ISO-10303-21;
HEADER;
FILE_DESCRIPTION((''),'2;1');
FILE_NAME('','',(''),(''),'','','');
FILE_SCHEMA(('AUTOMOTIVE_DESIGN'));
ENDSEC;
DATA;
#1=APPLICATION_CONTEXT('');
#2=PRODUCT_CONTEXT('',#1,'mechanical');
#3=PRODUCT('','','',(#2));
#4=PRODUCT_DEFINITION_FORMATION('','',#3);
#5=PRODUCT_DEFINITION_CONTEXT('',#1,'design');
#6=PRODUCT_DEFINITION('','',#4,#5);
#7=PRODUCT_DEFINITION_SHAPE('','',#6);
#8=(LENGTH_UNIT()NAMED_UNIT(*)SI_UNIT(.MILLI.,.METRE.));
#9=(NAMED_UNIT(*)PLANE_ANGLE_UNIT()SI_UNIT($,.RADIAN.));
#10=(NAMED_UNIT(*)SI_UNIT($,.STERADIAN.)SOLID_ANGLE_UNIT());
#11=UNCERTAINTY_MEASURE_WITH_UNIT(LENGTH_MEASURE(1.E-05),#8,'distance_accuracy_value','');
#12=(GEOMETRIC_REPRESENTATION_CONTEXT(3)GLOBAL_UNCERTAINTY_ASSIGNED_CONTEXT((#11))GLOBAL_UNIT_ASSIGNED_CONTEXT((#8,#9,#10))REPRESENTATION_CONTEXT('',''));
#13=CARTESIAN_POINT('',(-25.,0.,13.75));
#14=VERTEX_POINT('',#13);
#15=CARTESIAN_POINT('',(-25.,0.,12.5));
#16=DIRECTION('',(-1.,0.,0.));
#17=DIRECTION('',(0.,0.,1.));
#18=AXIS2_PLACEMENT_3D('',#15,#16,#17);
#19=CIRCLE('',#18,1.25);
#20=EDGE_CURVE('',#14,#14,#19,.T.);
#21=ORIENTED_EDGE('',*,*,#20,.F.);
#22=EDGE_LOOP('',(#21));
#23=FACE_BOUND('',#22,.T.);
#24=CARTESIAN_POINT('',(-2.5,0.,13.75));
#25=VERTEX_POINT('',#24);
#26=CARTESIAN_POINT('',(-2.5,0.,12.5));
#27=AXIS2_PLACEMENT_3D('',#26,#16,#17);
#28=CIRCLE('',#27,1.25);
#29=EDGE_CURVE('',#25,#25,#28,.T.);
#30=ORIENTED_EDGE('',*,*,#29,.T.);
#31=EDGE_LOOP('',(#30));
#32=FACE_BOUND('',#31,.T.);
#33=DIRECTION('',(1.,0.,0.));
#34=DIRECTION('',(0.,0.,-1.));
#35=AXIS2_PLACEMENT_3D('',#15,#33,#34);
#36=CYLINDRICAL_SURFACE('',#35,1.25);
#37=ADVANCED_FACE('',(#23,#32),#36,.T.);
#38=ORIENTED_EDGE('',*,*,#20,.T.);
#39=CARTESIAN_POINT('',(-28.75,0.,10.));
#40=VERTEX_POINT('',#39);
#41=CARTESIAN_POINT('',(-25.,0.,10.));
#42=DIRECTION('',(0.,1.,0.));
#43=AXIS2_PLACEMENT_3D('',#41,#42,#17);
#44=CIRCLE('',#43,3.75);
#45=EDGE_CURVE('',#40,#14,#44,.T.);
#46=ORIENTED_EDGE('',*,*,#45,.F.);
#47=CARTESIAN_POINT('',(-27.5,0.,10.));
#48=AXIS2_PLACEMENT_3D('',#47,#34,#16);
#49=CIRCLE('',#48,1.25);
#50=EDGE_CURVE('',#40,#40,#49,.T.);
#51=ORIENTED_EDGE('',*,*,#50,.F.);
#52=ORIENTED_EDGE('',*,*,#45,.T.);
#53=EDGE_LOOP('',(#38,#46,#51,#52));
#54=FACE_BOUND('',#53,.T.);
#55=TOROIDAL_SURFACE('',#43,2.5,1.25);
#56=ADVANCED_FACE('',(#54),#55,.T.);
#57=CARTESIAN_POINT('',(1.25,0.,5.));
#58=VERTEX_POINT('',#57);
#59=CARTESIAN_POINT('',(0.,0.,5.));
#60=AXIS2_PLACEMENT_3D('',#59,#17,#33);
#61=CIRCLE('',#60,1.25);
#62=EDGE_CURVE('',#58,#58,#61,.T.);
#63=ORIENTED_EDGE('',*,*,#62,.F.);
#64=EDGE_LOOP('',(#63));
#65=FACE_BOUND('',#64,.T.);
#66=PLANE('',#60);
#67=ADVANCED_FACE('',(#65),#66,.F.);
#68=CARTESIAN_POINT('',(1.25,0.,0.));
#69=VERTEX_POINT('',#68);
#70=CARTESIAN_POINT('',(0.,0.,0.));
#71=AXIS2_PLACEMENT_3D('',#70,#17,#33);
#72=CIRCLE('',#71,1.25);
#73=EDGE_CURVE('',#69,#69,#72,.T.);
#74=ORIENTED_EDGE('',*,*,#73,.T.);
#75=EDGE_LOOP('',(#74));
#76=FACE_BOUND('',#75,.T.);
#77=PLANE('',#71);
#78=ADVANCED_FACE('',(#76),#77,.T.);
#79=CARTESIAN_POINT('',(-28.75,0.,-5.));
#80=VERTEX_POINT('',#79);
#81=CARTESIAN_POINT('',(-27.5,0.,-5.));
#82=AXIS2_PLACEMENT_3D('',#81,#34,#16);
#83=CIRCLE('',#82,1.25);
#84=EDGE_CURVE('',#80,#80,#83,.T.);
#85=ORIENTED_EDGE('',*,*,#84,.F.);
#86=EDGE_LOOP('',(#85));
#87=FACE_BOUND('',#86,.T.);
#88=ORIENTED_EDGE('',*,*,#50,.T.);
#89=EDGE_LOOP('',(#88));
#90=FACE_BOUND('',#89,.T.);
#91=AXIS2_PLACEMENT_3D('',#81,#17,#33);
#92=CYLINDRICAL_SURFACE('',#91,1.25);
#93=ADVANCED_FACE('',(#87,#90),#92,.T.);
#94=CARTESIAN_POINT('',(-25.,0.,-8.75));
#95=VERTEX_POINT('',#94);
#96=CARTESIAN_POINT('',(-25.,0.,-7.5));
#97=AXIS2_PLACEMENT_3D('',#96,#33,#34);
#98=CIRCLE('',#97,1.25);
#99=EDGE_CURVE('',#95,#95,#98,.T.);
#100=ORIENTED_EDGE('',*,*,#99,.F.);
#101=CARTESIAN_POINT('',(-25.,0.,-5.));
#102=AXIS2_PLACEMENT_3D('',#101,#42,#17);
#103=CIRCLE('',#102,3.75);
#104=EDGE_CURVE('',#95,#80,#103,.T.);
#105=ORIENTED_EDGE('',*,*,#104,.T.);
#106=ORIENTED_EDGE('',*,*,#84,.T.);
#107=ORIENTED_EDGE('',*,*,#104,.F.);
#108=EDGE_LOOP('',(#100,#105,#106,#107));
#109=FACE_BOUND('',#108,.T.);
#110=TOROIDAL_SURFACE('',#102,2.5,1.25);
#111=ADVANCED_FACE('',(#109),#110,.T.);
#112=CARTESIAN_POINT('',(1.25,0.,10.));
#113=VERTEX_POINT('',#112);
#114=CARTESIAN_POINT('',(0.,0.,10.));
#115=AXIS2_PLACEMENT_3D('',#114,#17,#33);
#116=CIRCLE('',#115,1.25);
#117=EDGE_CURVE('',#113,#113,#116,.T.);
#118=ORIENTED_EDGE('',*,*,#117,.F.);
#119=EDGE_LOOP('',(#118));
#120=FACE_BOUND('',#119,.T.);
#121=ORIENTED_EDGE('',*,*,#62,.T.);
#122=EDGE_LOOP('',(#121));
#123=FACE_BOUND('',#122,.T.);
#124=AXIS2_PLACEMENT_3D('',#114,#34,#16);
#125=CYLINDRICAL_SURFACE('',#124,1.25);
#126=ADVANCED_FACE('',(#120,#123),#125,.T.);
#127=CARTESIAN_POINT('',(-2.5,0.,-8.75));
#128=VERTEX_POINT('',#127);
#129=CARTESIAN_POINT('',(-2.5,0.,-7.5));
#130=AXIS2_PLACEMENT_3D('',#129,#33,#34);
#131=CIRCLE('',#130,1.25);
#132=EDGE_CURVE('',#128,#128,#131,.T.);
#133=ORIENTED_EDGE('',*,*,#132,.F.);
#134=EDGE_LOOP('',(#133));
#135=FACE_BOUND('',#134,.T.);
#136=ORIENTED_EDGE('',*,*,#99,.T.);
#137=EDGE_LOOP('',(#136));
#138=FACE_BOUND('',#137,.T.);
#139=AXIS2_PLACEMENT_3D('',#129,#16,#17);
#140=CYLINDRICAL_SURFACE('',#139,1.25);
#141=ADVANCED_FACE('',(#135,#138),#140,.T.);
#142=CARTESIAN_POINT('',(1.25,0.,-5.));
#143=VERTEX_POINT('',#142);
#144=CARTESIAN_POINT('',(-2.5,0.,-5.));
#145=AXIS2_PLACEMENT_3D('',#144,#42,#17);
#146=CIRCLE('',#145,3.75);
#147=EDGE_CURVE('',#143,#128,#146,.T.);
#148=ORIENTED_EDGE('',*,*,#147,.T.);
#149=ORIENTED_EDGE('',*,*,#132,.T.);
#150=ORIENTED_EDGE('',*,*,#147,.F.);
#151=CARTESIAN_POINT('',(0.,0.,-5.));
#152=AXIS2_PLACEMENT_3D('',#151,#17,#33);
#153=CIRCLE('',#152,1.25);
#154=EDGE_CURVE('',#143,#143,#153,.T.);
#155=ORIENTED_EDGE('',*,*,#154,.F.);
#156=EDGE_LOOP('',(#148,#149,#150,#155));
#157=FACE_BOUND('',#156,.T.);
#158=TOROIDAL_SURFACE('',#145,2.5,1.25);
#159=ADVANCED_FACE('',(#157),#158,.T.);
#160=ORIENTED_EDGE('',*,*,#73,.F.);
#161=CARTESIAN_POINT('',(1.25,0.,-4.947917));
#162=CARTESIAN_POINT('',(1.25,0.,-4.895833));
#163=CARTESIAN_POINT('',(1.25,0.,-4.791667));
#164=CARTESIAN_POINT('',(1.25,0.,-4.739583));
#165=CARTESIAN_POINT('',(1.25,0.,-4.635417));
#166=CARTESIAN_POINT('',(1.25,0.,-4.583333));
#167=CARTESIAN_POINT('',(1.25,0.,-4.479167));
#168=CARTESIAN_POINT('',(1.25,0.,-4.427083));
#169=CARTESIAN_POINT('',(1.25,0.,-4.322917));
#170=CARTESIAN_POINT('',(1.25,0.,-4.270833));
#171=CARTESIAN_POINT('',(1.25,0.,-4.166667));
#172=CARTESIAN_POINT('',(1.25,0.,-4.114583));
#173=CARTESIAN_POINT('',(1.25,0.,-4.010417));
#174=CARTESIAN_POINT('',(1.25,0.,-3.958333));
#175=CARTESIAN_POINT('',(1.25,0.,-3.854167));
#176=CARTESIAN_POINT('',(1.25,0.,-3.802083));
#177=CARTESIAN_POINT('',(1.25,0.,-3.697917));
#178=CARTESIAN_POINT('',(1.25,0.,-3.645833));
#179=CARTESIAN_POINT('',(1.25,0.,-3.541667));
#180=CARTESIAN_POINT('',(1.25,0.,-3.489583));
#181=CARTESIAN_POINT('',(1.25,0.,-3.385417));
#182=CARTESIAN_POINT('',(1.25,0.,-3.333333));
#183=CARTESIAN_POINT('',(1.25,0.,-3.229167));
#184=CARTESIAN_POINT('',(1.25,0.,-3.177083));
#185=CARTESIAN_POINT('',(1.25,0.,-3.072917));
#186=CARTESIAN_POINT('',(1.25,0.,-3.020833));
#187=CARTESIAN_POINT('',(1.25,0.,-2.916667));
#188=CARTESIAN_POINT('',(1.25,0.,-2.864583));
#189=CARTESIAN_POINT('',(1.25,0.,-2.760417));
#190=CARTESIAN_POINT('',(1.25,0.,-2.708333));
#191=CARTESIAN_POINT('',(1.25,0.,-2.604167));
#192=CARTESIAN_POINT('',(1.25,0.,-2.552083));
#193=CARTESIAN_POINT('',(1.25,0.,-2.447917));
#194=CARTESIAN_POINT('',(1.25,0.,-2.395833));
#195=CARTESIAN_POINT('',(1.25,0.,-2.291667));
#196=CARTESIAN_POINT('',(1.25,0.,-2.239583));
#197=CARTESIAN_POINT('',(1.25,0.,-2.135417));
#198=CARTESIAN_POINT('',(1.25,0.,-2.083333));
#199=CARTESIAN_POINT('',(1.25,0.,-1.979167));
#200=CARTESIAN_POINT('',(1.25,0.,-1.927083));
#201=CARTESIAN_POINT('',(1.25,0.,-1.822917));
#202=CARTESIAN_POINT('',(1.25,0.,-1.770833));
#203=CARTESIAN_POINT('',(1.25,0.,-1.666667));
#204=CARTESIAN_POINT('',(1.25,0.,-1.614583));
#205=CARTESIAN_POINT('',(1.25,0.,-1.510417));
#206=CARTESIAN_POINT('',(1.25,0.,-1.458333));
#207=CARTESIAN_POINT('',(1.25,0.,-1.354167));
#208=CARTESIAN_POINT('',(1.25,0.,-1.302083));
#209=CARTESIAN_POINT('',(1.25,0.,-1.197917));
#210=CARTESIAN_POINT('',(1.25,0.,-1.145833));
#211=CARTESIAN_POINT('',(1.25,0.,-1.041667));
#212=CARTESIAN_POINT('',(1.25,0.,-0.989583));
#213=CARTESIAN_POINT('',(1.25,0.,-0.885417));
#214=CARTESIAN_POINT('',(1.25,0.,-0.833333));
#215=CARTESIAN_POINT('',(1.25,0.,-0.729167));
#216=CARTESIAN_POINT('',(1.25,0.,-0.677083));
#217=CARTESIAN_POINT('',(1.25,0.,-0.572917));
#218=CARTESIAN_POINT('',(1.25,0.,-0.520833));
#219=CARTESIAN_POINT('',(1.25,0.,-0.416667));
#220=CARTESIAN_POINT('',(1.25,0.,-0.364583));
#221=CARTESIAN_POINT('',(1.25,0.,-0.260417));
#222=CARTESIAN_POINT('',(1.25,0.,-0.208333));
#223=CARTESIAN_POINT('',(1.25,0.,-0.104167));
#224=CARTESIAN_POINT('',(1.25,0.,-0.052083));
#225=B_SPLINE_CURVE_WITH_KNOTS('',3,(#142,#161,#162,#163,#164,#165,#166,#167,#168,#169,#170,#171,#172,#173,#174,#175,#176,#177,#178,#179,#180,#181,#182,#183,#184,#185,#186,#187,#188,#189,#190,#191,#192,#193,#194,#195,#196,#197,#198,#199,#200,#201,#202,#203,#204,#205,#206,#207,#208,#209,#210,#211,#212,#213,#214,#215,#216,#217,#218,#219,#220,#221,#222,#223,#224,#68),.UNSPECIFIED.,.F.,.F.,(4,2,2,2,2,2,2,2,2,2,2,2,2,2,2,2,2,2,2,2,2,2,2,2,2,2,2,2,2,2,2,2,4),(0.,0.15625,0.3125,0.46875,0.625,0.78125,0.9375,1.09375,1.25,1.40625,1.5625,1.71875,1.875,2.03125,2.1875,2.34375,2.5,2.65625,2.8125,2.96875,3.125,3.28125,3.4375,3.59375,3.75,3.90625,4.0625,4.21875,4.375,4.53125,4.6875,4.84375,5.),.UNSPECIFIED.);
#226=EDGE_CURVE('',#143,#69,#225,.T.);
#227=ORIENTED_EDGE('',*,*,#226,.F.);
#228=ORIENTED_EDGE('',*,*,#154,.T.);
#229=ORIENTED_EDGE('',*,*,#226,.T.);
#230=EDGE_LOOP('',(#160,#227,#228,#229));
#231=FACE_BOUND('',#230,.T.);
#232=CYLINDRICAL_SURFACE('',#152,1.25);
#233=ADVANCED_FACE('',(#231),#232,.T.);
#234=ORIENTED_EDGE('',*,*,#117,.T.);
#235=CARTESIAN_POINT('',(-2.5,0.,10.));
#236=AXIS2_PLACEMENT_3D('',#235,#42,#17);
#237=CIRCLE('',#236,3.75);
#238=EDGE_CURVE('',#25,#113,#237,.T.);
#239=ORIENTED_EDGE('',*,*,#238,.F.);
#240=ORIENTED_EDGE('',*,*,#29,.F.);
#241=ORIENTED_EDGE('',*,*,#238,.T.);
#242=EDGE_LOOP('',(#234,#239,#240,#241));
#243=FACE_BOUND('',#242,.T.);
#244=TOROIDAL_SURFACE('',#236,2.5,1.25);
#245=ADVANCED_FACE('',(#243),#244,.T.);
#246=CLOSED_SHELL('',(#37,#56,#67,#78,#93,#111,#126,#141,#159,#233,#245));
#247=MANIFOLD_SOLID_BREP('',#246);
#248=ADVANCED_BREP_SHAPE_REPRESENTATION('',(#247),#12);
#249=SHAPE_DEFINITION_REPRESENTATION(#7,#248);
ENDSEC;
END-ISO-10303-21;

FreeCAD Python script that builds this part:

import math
import FreeCAD as App
import Part
import Sketcher
Q = App.Units.Quantity

doc = App.newDocument("Part")
body = doc.addObject("PartDesign::Body", "Body")

# Sketch on XY plane
sketch1 = body.newObject("Sketcher::SketchObject", "Sketch")
sketch1.AttachmentSupport = (doc.getObject("XY_Plane"), [""])
sketch1.MapMode = "FlatFace"
sketch1.addGeometry(Part.Circle(App.Vector(0, 0, 0), App.Vector(0, 0, 1), 1.2), False)
sketch1.addConstraint(Sketcher.Constraint("Coincident", 0, 3, -1, 1))
sketch1.addConstraint(Sketcher.Constraint("Diameter", 0, Q("2.5 mm")))

# Sketch on XZ plane
sketch2 = body.newObject("Sketcher::SketchObject", "Sketch001")
sketch2.AttachmentSupport = (doc.getObject("XZ_Plane"), [""])
sketch2.MapMode = "FlatFace"
sketch2.addGeometry(Part.LineSegment(App.Vector(0, 0, 0), App.Vector(0, -5, 0)), False)
sketch2.addGeometry(Part.ArcOfCircle(Part.Circle(App.Vector(-2.5, -5, 0), App.Vector(0, 0, 1), 2.5), math.radians(-90), math.radians(0)), False)
sketch2.addGeometry(Part.LineSegment(App.Vector(-2.5, -7.5, 0), App.Vector(-25, -7.5, 0)), False)
sketch2.addGeometry(Part.ArcOfCircle(Part.Circle(App.Vector(-25, -5, 0), App.Vector(0, 0, 1), 2.5), math.radians(180), math.radians(270)), False)
sketch2.addGeometry(Part.LineSegment(App.Vector(-27.5, -5, 0), App.Vector(-27.5, 10, 0)), False)
sketch2.addGeometry(Part.ArcOfCircle(Part.Circle(App.Vector(-25, 10, 0), App.Vector(0, 0, 1), 2.5), math.radians(90), math.radians(180)), False)
sketch2.addGeometry(Part.LineSegment(App.Vector(-25, 12.5, 0), App.Vector(-2.5, 12.5, 0)), False)
sketch2.addGeometry(Part.ArcOfCircle(Part.Circle(App.Vector(-2.5, 10, 0), App.Vector(0, 0, 1), 2.5), math.radians(0), math.radians(90)), False)
sketch2.addGeometry(Part.LineSegment(App.Vector(0, 10, 0), App.Vector(0, 5, 0)), False)
sketch2.addConstraint(Sketcher.Constraint("Tangent", 0, 2, 1, 2))
sketch2.addConstraint(Sketcher.Constraint("Tangent", 1, 1, 2, 1))
sketch2.addConstraint(Sketcher.Constraint("Tangent", 2, 2, 3, 2))
sketch2.addConstraint(Sketcher.Constraint("Tangent", 3, 1, 4, 1))
sketch2.addConstraint(Sketcher.Constraint("Tangent", 4, 2, 5, 2))
sketch2.addConstraint(Sketcher.Constraint("Tangent", 5, 1, 6, 1))
sketch2.addConstraint(Sketcher.Constraint("Tangent", 6, 2, 7, 2))
sketch2.addConstraint(Sketcher.Constraint("Tangent", 7, 1, 8, 1))
sketch2.addConstraint(Sketcher.Constraint("Vertical", 0))
sketch2.addConstraint(Sketcher.Constraint("Horizontal", 2))
sketch2.addConstraint(Sketcher.Constraint("Vertical", 4))
sketch2.addConstraint(Sketcher.Constraint("Horizontal", 6))
sketch2.addConstraint(Sketcher.Constraint("Vertical", 8))
sketch2.addConstraint(Sketcher.Constraint("Coincident", 0, 1, -1, 1))
sketch2.addConstraint(Sketcher.Constraint("Equal", 1, 3))
sketch2.addConstraint(Sketcher.Constraint("Equal", 3, 5))
sketch2.addConstraint(Sketcher.Constraint("Equal", 5, 7))
sketch2.addConstraint(Sketcher.Constraint("Symmetric", 0, 2, 8, 2, -1, 1))
sketch2.addConstraint(Sketcher.Constraint("Equal", 0, 8))
sketch2.addConstraint(Sketcher.Constraint("Radius", 1, Q("2.5 mm")))
sketch2.addConstraint(Sketcher.Constraint("DistanceY", 0, 2, 0, 1, Q("5 mm")))
sketch2.addConstraint(Sketcher.Constraint("DistanceX", 2, 2, 2, 1, Q("22.5 mm")))
doc.recompute()

additivepipe = body.newObject("PartDesign::AdditivePipe", "AdditivePipe")
additivepipe.Profile = sketch1
additivepipe.Spine = (sketch2, ["Edge1", "Edge2", "Edge3", "Edge4", "Edge5", "Edge6", "Edge7", "Edge8", "Edge9"])

doc.recompute()
